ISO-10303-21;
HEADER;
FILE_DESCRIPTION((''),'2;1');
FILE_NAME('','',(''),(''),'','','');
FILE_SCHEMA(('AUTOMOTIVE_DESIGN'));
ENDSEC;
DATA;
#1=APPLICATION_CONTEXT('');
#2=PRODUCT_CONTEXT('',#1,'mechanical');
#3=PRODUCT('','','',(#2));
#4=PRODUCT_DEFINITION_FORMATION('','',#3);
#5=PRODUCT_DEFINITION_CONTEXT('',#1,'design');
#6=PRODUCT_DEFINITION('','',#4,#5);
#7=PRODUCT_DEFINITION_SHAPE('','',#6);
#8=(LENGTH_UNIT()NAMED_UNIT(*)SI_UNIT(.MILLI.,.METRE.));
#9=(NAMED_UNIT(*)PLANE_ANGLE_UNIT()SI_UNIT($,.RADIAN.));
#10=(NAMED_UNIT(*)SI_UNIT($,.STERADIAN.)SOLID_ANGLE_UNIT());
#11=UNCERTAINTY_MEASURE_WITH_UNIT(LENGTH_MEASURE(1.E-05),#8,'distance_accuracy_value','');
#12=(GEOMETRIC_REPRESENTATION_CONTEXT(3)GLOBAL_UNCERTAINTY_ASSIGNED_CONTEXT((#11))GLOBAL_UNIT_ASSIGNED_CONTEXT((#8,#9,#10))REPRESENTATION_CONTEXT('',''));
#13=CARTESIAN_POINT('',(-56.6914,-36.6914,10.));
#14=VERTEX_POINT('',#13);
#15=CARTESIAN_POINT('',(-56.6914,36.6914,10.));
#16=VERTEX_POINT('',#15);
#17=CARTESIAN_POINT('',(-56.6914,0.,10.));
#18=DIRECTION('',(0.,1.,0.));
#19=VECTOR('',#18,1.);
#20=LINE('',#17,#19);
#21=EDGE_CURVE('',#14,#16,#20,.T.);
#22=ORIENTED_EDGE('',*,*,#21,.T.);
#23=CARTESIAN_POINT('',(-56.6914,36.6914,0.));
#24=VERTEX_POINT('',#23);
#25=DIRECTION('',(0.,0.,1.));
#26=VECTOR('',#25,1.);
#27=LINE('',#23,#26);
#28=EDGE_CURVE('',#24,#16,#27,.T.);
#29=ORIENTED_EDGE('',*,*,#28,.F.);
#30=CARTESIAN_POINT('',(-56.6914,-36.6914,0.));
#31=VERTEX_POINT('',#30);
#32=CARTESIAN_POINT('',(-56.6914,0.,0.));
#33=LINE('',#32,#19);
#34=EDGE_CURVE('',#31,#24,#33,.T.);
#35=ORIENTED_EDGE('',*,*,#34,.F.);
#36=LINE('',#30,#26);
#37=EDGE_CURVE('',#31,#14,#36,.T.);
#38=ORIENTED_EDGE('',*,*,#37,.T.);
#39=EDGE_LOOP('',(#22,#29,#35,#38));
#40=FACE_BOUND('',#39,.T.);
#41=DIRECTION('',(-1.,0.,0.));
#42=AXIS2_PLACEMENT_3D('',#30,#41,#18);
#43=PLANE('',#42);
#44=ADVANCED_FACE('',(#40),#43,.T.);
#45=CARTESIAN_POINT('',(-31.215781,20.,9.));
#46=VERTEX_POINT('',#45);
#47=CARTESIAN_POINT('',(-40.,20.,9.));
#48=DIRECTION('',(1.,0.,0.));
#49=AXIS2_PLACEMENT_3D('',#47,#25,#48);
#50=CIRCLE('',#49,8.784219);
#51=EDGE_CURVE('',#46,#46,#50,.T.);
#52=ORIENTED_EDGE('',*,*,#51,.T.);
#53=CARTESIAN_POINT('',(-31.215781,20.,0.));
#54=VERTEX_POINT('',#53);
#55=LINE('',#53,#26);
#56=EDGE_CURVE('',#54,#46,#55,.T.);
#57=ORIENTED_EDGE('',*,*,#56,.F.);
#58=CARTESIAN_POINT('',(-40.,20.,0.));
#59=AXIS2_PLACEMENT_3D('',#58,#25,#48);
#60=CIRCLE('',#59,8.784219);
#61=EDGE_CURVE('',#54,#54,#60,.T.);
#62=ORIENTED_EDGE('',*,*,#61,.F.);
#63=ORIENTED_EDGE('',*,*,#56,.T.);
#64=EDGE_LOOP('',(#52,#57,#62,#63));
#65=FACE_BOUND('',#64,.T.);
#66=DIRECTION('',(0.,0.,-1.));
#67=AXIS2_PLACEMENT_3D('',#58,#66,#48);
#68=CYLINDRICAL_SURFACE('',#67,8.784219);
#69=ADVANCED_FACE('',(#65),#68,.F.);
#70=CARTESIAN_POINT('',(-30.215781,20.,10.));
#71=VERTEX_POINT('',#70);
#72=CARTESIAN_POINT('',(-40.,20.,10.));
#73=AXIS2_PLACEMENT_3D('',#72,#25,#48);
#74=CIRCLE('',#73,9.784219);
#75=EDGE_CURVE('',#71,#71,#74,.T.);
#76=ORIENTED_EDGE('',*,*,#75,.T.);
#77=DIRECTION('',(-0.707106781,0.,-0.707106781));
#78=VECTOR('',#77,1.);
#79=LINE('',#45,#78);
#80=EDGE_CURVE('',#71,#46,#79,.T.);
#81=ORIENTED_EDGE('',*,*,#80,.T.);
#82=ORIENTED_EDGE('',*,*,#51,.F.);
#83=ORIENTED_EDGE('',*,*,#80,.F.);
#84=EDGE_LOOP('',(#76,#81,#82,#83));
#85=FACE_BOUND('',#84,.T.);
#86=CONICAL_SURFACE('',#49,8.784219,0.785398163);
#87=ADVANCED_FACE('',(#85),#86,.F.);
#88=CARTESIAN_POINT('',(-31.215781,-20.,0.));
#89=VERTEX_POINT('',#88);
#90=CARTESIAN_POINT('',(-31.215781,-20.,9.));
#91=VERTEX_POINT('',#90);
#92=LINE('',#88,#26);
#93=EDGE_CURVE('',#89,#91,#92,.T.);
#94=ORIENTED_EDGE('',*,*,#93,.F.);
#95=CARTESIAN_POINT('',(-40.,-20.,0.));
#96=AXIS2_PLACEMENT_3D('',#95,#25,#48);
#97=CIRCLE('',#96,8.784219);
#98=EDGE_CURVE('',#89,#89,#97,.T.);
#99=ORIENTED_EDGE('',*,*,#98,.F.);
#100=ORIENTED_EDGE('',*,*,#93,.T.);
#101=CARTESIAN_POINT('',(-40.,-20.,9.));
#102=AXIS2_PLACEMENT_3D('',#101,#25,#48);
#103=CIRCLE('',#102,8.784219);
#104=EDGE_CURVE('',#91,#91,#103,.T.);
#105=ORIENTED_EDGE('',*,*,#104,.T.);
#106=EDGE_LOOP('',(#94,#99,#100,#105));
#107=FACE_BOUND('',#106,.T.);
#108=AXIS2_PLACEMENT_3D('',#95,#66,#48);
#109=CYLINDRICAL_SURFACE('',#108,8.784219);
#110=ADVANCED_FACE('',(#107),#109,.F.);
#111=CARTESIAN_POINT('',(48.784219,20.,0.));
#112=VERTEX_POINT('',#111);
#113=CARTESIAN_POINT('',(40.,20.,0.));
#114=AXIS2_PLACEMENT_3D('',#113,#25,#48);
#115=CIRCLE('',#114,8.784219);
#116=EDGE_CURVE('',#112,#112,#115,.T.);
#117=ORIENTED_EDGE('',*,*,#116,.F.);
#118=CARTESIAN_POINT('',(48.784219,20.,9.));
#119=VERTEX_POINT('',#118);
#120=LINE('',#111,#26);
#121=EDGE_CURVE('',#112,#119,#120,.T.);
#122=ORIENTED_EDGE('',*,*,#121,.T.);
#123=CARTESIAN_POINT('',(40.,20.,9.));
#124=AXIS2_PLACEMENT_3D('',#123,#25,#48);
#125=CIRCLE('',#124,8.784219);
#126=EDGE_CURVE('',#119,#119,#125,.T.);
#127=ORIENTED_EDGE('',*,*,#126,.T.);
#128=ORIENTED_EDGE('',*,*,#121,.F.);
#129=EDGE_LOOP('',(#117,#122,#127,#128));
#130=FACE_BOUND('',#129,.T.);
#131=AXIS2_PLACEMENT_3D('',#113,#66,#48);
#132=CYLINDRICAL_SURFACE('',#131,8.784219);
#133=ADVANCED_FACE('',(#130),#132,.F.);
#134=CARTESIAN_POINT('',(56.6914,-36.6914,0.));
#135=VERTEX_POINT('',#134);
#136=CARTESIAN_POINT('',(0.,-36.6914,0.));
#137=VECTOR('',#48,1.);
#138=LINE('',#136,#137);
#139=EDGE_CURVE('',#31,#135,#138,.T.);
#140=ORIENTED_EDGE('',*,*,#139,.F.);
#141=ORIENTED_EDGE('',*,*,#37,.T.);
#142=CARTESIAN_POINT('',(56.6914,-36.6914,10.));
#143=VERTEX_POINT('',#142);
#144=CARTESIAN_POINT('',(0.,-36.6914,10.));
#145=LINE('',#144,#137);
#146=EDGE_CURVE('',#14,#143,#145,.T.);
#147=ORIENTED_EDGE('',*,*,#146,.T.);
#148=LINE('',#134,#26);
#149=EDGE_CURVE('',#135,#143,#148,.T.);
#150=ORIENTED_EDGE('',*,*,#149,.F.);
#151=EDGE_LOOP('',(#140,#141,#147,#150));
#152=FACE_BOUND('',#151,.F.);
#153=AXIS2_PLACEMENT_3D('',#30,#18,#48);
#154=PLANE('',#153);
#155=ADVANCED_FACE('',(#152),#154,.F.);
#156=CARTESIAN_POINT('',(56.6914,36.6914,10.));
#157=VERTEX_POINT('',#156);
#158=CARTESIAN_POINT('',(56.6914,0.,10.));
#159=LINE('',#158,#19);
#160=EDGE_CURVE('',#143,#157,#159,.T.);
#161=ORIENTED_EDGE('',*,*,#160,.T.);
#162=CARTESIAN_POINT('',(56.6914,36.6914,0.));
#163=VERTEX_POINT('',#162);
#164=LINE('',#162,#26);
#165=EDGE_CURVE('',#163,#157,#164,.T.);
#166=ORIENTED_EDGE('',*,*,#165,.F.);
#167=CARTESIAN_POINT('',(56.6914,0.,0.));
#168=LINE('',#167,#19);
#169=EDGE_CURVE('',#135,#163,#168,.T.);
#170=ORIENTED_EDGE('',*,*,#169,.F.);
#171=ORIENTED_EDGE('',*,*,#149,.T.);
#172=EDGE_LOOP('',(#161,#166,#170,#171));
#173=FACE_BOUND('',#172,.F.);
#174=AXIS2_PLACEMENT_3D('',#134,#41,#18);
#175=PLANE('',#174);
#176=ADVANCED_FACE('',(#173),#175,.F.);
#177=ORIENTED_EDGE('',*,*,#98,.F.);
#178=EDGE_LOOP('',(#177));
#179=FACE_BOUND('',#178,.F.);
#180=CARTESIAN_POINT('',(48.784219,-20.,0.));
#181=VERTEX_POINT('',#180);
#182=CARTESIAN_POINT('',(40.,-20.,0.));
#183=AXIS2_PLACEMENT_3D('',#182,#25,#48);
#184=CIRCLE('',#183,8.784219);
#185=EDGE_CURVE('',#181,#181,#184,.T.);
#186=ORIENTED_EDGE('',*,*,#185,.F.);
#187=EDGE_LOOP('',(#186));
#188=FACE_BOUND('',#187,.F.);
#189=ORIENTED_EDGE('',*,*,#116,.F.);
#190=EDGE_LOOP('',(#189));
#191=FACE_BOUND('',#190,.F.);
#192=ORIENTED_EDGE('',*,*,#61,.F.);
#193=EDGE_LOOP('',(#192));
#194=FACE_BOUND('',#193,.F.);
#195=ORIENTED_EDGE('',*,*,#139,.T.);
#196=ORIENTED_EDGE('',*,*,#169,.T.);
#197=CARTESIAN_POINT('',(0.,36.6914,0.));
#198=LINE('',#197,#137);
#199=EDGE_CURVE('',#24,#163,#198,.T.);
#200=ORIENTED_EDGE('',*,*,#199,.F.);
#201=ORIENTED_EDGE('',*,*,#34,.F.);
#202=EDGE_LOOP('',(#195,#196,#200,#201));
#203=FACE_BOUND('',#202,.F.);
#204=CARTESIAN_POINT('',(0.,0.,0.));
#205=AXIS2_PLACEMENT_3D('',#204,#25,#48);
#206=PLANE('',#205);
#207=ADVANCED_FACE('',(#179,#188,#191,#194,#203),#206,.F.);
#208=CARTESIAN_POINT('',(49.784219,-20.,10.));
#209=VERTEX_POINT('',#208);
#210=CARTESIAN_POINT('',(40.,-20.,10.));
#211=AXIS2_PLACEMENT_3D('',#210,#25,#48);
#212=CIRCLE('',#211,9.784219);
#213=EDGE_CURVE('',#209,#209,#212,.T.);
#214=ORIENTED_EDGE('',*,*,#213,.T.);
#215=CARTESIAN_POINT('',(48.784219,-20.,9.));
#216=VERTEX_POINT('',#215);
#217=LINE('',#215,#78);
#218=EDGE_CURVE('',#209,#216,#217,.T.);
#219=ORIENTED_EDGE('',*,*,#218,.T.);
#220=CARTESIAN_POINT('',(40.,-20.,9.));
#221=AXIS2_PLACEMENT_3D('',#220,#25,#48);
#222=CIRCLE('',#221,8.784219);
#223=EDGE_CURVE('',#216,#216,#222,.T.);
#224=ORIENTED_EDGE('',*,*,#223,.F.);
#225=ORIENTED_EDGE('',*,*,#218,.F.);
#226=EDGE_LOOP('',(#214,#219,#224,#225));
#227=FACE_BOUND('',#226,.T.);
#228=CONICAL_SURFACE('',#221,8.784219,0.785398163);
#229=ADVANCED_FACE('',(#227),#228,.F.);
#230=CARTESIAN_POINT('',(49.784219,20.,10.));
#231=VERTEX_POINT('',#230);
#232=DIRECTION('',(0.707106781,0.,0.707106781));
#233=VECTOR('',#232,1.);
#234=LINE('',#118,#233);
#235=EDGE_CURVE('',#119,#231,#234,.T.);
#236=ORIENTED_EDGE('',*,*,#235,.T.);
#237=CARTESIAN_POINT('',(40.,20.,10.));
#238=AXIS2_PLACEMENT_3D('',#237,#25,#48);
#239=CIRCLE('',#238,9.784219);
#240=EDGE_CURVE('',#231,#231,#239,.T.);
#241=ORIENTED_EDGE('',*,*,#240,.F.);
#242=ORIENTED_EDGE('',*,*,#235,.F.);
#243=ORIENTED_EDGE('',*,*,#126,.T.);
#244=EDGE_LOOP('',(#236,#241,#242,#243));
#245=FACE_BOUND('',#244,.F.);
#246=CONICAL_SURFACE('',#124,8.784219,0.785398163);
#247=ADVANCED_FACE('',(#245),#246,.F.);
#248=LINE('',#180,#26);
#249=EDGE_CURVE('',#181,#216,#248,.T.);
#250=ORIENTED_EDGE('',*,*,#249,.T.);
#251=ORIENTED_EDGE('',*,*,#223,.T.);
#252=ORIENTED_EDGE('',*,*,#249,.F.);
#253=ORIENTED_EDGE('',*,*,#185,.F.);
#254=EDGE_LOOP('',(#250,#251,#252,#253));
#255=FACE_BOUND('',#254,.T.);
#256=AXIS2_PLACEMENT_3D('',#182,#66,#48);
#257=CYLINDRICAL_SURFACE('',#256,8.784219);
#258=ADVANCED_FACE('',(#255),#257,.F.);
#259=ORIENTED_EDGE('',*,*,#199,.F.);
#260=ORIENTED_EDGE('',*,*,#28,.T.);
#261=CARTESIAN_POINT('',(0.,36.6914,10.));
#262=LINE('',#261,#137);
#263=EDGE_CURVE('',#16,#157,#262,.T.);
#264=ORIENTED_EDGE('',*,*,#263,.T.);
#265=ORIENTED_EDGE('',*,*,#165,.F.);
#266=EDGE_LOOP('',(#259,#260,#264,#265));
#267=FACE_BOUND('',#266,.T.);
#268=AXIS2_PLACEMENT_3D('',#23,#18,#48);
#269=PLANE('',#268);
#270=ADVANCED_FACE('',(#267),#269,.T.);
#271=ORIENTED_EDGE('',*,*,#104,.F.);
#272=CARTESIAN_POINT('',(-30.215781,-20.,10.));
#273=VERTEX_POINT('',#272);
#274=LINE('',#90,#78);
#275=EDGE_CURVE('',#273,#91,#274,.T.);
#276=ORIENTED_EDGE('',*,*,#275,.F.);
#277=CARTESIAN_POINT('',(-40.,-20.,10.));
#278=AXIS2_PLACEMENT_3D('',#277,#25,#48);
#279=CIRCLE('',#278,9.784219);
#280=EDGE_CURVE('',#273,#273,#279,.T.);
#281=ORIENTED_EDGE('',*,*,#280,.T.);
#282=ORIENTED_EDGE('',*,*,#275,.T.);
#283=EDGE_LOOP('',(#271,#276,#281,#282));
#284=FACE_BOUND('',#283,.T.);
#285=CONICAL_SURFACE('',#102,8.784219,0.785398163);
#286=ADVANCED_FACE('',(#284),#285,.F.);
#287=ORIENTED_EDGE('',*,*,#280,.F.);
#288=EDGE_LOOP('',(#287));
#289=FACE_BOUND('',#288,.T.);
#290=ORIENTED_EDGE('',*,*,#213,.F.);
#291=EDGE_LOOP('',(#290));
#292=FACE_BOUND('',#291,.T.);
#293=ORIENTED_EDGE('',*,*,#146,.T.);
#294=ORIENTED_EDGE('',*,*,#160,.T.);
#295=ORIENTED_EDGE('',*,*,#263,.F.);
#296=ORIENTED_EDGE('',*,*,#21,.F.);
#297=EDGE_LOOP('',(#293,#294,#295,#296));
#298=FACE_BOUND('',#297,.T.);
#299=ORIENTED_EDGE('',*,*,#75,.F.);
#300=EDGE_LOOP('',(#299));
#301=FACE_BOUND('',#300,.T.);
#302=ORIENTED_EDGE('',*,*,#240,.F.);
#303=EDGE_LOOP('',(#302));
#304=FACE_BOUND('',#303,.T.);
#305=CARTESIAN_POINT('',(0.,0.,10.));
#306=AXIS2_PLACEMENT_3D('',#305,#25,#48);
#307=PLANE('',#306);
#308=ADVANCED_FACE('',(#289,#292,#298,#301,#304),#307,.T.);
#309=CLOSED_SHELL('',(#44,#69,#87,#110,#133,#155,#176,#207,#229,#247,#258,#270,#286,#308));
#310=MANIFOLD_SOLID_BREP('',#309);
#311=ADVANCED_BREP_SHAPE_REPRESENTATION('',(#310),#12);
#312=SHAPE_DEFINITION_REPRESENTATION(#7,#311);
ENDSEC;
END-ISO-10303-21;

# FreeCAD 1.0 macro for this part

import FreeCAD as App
import Part
import Sketcher

V = App.Vector
Q = App.Units.Quantity


def edges_at(feature, points):
    """Names of the edges that pass closest to the given points."""
    edges = feature.Shape.Edges
    near = lambda p: min(range(len(edges)), key=lambda i: edges[i].distToShape(Part.Vertex(*p))[0])
    return sorted({f"Edge{near(p) + 1}" for p in points})

doc = App.newDocument("Part")
body = doc.addObject("PartDesign::Body", "Body")

sketch1 = body.newObject("Sketcher::SketchObject", "Sketch")
sketch1.AttachmentSupport = (doc.getObject("XY_Plane"), [""])
sketch1.MapMode = "FlatFace"
sketch1.addGeometry([
    Part.LineSegment(V(-56.6914, 36.6914, 0), V(-56.6914, -36.6914, 0)),
    Part.LineSegment(V(-56.6914, -36.6914, 0), V(56.6914, -36.6914, 0)),
    Part.LineSegment(V(56.6914, -36.6914, 0), V(56.6914, 36.6914, 0)),
    Part.LineSegment(V(56.6914, 36.6914, 0), V(-56.6914, 36.6914, 0)),
    Part.Circle(V(-40, -20, 0), V(0, 0, 1), 8.784219),
    Part.Circle(V(40, -20, 0), V(0, 0, 1), 8.784219),
    Part.Circle(V(-40, 20, 0), V(0, 0, 1), 8.784219),
    Part.Circle(V(40, 20, 0), V(0, 0, 1), 8.784219),
], False)
sketch1.addConstraint([
    Sketcher.Constraint("Coincident", 0, 2, 1, 1),
    Sketcher.Constraint("Coincident", 1, 2, 2, 1),
    Sketcher.Constraint("Coincident", 2, 2, 3, 1),
    Sketcher.Constraint("Coincident", 3, 2, 0, 1),
    Sketcher.Constraint("Vertical", 0),
    Sketcher.Constraint("Horizontal", 1),
    Sketcher.Constraint("Vertical", 2),
    Sketcher.Constraint("Horizontal", 3),
    Sketcher.Constraint("Equal", 4, 5),
    Sketcher.Constraint("Equal", 5, 6),
    Sketcher.Constraint("Equal", 6, 7),
    Sketcher.Constraint("Symmetric", 5, 3, 6, 3, -1, 1),
    Sketcher.Constraint("Symmetric", 4, 3, 7, 3, -1, 1),
    Sketcher.Constraint("Symmetric", 0, 2, 2, 2, -1, 1),
    Sketcher.Constraint("Symmetric", 4, 3, 5, 3, -2),
    Sketcher.Constraint("DistanceX", 4, 3, -1, 1, Q("40 mm")),
    Sketcher.Constraint("DistanceY", 4, 3, -1, 1, Q("20 mm")),
    Sketcher.Constraint("Diameter", 4, Q("17.568438 mm")),
    Sketcher.Constraint("DistanceX", 1, 1, 1, 2, Q("113.3828 mm")),
    Sketcher.Constraint("DistanceY", 0, 2, 0, 1, Q("73.3828 mm")),
])
pad1 = body.newObject("PartDesign::Pad", "Pad")
pad1.Profile = sketch1
pad1.Length = 10
doc.recompute()

chamfer = body.newObject("PartDesign::Chamfer", "Chamfer")
chamfer.Base = (pad1, edges_at(pad1, [(31.216, 20, 10)]))
chamfer.Size = 1
doc.recompute()

chamfer2 = body.newObject("PartDesign::Chamfer", "Chamfer001")
chamfer2.Base = (chamfer, edges_at(chamfer, [(31.216, -20, 10)]))
chamfer2.Size = 1
doc.recompute()

chamfer3 = body.newObject("PartDesign::Chamfer", "Chamfer002")
chamfer3.Base = (chamfer2, edges_at(chamfer2, [(-48.784, 20, 10)]))
chamfer3.Size = 1
doc.recompute()

chamfer4 = body.newObject("PartDesign::Chamfer", "Chamfer003")
chamfer4.Base = (chamfer3, edges_at(chamfer3, [(-48.784, -20, 10)]))
chamfer4.Size = 1

doc.recompute()
